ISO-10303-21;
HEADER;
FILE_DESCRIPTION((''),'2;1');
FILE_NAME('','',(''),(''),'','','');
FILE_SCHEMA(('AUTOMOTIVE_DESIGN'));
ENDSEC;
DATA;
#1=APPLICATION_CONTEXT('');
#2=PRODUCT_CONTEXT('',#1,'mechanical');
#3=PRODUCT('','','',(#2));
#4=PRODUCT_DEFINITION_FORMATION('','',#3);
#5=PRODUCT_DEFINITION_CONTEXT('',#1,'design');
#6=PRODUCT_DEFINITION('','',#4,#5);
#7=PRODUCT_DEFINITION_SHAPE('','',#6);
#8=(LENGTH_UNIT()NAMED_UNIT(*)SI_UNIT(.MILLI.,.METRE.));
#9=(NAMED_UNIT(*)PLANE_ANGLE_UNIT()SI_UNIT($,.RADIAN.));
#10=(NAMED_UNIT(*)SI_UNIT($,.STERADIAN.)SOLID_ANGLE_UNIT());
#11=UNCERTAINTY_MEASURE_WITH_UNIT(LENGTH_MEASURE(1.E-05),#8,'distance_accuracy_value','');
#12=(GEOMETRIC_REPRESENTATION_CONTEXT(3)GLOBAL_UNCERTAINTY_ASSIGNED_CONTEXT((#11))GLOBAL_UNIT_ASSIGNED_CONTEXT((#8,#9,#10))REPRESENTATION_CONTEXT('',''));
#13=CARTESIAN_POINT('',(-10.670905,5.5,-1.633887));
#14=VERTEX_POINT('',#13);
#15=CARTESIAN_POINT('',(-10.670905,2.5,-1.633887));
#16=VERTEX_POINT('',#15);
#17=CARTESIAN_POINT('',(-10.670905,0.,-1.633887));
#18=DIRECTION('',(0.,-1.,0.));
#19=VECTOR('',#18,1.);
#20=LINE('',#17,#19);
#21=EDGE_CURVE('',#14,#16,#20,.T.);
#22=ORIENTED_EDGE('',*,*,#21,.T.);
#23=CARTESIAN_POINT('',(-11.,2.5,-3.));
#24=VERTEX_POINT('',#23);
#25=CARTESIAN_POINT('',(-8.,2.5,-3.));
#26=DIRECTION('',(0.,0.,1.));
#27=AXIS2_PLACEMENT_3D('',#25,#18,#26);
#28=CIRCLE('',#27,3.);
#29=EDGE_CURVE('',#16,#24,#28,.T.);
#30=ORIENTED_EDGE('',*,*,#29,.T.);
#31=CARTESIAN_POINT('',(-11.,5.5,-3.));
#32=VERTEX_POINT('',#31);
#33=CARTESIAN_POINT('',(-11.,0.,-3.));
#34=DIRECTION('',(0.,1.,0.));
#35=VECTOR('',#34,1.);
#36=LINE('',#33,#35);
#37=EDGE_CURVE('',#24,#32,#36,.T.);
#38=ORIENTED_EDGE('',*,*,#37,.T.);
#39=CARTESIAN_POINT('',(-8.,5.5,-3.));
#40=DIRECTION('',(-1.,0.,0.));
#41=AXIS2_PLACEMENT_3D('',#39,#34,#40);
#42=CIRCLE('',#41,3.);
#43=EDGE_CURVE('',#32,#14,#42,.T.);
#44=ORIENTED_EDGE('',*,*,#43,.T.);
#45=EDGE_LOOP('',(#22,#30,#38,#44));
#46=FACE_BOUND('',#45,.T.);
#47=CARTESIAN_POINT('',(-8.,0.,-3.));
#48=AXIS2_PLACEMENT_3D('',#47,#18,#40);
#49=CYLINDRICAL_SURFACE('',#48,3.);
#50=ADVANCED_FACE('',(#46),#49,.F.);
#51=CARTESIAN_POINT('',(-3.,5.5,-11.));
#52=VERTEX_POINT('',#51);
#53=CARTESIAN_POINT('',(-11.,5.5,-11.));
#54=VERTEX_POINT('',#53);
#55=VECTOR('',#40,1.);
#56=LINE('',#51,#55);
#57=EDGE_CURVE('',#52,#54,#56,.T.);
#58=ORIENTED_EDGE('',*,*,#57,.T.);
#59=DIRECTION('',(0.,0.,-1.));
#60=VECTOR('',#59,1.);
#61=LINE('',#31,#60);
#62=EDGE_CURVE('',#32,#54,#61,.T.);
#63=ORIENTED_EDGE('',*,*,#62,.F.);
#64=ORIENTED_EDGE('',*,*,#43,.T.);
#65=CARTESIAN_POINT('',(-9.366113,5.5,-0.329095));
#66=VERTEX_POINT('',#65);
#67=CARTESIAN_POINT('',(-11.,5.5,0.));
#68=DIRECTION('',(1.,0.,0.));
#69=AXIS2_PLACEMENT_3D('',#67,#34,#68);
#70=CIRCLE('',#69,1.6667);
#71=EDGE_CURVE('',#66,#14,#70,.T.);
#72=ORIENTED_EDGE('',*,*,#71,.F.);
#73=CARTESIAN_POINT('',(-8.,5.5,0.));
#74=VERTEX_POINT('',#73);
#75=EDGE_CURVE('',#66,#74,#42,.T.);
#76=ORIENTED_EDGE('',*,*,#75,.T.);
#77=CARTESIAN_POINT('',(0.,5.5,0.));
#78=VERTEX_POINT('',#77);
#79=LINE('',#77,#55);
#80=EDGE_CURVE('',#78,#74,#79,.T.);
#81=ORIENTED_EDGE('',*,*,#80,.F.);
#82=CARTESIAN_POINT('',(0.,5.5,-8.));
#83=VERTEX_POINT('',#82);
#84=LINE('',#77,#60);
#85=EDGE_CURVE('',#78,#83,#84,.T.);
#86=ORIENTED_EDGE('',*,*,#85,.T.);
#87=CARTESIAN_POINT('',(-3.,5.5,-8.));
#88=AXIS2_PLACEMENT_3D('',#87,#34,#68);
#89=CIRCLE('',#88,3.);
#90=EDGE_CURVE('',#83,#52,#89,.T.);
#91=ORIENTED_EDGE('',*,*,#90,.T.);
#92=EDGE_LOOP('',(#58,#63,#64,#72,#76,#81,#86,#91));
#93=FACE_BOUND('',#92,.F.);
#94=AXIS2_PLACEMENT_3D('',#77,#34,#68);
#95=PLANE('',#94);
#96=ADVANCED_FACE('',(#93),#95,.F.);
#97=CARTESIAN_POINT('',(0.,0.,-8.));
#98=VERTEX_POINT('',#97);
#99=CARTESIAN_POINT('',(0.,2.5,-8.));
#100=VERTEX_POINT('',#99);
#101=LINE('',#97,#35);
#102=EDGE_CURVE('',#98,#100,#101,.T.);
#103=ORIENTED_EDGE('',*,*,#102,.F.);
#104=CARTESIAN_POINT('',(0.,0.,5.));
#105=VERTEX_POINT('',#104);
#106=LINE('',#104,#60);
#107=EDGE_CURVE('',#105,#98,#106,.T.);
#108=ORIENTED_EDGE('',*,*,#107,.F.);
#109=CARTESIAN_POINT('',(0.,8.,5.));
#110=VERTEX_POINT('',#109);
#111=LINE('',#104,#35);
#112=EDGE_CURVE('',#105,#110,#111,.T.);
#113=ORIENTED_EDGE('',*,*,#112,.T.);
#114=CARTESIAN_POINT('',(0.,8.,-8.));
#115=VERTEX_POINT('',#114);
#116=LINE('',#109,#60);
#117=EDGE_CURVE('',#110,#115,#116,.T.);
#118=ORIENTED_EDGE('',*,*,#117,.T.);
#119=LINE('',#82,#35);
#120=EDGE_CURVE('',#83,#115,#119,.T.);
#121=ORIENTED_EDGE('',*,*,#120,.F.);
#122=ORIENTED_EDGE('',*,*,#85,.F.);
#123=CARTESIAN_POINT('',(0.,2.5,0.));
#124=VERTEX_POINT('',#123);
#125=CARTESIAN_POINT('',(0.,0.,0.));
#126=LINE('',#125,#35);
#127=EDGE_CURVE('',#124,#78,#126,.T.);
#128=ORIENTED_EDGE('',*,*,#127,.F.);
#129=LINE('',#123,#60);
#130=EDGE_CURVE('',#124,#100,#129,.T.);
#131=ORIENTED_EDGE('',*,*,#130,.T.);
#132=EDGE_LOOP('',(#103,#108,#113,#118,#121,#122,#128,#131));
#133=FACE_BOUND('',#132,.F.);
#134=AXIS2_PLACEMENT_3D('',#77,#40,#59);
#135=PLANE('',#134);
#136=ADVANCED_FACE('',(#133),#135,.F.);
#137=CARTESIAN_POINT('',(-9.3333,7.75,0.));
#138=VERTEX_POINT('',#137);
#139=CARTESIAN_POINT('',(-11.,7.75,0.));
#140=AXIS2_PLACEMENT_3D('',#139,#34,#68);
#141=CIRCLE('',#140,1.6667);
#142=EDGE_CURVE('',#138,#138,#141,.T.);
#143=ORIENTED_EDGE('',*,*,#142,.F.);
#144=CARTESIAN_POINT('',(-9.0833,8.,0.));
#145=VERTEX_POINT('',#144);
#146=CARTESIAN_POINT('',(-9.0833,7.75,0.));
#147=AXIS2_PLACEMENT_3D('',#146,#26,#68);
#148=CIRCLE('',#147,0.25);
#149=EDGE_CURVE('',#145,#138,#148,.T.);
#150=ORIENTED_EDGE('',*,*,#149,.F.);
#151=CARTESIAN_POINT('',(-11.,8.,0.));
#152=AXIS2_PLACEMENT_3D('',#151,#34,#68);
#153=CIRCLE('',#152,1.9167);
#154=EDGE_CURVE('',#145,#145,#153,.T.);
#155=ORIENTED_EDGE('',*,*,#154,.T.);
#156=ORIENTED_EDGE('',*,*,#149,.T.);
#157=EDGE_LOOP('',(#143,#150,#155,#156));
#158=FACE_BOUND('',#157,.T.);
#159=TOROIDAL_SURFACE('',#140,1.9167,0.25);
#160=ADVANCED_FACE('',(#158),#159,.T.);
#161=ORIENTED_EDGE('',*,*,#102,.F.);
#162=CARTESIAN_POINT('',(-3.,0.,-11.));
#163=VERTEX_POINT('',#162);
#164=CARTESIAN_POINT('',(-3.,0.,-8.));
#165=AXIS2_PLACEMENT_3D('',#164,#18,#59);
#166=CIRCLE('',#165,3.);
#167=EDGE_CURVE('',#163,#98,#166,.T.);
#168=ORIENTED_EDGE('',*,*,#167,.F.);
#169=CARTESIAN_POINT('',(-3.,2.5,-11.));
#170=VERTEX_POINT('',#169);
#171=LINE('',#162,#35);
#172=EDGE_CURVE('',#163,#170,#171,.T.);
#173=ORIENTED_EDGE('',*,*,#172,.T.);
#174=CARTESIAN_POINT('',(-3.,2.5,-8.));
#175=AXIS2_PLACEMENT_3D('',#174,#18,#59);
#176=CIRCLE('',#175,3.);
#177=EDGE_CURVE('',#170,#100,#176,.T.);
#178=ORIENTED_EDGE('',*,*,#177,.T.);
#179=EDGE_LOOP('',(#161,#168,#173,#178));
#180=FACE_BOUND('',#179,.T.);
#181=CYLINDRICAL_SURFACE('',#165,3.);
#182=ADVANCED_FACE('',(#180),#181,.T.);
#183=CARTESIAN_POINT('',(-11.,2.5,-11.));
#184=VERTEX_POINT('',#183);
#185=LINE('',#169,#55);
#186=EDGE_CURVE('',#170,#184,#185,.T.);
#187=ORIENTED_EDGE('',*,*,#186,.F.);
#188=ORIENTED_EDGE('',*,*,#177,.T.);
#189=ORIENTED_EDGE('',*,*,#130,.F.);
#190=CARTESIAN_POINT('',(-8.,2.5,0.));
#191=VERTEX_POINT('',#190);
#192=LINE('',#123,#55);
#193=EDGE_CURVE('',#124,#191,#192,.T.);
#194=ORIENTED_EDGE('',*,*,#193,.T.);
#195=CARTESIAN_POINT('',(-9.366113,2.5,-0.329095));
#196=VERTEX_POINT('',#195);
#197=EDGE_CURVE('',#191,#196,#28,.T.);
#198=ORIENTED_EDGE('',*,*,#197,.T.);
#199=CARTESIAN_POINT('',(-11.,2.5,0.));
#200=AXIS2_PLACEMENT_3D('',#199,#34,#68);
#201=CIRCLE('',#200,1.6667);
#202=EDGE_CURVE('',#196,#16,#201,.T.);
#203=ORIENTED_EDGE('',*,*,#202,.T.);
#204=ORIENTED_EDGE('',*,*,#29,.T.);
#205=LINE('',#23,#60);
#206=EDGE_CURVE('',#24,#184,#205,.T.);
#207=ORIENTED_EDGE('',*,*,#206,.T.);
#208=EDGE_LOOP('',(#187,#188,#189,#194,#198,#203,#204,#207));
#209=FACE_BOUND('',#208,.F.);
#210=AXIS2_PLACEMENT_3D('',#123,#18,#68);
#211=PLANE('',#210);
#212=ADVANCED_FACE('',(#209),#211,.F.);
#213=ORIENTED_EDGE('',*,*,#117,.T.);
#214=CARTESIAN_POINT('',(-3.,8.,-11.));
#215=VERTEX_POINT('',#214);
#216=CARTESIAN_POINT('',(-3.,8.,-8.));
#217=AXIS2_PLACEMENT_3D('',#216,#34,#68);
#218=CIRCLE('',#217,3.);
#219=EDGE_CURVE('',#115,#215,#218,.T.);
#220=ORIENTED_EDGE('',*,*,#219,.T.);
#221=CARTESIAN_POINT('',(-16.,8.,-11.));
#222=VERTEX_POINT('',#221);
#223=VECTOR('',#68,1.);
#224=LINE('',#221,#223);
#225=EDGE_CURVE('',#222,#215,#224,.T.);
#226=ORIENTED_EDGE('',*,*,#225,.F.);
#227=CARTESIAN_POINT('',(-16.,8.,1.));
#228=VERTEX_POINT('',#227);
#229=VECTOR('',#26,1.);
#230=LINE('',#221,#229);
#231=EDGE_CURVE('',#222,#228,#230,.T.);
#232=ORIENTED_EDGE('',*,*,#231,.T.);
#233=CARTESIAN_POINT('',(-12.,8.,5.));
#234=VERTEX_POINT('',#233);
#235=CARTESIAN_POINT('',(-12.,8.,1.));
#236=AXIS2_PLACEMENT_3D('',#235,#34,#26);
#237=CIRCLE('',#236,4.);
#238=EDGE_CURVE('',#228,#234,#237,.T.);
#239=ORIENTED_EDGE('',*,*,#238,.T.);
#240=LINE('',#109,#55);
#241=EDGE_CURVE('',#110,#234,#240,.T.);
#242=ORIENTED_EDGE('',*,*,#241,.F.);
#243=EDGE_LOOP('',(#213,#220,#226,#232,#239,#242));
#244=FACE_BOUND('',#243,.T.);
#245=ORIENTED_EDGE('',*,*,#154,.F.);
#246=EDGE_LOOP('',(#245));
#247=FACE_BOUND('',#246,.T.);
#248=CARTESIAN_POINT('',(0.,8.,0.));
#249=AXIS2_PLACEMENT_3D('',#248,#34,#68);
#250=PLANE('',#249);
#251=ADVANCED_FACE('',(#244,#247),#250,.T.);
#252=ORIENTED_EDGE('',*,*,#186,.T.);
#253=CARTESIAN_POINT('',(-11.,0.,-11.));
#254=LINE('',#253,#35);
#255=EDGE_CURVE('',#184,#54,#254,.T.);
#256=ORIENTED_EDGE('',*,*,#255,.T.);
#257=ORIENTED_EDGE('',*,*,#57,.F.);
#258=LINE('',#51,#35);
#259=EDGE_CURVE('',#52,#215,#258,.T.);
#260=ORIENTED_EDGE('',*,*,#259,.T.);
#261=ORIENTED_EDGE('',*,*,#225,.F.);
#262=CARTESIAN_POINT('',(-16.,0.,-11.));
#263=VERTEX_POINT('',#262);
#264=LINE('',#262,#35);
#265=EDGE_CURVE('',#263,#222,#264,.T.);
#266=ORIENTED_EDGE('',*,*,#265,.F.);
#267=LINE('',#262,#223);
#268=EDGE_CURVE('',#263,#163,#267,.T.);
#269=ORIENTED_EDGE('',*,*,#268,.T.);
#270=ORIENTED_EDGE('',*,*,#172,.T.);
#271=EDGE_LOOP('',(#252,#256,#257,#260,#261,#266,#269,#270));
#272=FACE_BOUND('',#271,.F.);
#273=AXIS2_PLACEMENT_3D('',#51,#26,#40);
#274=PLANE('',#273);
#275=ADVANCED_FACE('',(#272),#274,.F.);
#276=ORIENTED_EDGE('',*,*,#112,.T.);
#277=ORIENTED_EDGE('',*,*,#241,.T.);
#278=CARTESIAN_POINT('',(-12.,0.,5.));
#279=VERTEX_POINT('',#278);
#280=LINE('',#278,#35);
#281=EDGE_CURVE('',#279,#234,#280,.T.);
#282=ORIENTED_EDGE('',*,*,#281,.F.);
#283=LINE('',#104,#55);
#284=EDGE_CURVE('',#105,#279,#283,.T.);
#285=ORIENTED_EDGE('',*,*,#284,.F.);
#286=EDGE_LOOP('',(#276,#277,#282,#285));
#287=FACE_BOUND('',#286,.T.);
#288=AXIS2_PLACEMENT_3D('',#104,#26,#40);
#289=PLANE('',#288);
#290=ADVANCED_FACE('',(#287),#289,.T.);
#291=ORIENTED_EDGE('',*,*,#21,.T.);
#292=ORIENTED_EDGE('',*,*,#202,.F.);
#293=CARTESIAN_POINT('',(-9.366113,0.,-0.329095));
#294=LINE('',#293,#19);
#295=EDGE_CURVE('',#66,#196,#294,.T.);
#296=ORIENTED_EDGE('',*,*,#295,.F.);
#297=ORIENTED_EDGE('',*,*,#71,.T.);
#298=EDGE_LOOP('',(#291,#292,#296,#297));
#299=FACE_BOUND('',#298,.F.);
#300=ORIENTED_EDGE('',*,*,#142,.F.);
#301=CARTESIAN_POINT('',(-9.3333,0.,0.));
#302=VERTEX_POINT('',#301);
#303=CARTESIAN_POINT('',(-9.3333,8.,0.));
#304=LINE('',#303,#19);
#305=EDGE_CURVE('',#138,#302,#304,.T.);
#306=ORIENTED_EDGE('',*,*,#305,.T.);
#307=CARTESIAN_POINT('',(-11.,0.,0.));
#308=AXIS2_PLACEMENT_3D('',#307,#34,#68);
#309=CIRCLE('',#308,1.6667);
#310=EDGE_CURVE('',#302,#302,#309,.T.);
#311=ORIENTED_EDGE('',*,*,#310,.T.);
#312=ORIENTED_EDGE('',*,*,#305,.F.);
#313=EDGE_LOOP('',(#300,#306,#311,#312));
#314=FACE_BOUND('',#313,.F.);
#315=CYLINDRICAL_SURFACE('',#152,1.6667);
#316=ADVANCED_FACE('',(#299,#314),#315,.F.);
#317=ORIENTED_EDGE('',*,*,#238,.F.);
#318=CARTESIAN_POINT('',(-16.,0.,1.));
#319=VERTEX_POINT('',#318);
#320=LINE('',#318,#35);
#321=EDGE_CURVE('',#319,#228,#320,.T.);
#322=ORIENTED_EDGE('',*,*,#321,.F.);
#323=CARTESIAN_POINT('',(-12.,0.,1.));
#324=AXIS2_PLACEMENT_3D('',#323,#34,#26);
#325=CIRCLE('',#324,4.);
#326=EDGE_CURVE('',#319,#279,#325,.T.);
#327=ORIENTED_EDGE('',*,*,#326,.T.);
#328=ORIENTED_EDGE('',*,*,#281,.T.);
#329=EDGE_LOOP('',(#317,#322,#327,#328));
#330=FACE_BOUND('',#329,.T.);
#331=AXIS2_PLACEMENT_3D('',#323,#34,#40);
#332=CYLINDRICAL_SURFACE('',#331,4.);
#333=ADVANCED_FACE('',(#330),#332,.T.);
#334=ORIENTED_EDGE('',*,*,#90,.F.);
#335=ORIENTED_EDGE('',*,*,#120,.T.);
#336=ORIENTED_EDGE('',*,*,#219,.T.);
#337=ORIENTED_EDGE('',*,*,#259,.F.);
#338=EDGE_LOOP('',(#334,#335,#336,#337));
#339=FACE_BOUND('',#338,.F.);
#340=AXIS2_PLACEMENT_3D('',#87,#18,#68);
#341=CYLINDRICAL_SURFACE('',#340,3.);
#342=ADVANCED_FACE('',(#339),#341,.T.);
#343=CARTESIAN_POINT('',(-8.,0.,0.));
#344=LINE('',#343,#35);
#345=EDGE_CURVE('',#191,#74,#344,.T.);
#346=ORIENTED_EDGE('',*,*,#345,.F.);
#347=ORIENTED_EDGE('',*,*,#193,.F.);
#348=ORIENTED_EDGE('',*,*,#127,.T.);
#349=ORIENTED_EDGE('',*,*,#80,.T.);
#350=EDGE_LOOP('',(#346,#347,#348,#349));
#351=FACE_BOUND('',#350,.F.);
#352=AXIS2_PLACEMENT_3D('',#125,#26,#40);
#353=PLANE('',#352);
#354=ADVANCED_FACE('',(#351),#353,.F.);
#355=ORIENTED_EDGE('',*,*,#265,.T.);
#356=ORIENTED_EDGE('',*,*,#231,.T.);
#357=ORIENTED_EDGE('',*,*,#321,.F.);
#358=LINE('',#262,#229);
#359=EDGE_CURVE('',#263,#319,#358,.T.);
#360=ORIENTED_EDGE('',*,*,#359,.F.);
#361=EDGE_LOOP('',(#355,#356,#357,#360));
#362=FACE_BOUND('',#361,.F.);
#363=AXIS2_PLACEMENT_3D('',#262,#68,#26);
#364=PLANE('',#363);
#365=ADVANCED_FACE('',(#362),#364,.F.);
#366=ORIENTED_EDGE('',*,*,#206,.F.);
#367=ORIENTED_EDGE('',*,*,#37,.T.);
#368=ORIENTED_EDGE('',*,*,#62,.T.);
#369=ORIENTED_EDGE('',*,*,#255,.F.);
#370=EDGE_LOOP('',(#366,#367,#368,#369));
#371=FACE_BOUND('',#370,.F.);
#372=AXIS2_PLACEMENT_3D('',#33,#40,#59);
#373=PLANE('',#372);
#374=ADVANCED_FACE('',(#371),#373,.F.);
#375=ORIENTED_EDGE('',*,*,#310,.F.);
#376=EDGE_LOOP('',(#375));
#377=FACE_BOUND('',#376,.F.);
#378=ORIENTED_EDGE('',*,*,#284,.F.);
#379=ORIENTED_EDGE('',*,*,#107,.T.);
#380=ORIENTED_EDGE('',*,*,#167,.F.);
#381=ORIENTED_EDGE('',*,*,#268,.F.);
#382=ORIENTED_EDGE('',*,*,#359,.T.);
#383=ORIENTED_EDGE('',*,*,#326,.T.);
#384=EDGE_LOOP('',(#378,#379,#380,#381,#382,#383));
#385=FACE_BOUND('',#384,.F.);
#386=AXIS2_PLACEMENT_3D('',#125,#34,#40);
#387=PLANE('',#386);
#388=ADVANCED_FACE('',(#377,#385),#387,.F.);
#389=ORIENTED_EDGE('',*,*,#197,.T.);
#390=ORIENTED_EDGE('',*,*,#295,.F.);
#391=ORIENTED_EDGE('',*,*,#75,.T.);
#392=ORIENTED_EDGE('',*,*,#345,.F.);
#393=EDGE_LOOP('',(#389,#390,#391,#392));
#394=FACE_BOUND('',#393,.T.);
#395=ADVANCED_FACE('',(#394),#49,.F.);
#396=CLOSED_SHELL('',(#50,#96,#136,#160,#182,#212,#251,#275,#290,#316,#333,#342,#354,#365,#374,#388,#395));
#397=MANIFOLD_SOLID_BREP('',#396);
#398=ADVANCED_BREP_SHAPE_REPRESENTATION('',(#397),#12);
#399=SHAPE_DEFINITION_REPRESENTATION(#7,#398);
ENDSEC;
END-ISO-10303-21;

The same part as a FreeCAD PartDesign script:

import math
import FreeCAD as App
import Part
import Sketcher
from FreeCAD import Vector


def edges_at(feature, points):
    """Names of the edges that pass closest to the given points."""
    edges = feature.Shape.Edges
    near = lambda p: min(range(len(edges)), key=lambda i: edges[i].distToShape(Part.Vertex(*p))[0])
    return sorted({f"Edge{near(p) + 1}" for p in points})

doc = App.newDocument("Part")
body = doc.addObject("PartDesign::Body", "Body")

# Sketch on XZ plane
sketch1 = body.newObject("Sketcher::SketchObject", "Sketch")
sketch1.AttachmentSupport = (doc.getObject("XZ_Plane"), [""])
sketch1.MapMode = "FlatFace"
sketch1.addGeometry(Part.LineSegment(Vector(0, 5, 0), Vector(0, 0, 0)), False)
sketch1.addGeometry(Part.LineSegment(Vector(0, 0, 0), Vector(-8, 0, 0)), False)
sketch1.addGeometry(Part.ArcOfCircle(Part.Circle(Vector(-8, -3, 0), Vector(0, 0, 1), 3), math.radians(90), math.radians(180)), False)
sketch1.addGeometry(Part.LineSegment(Vector(-11, -3, 0), Vector(-11, -11, 0)), False)
sketch1.addGeometry(Part.LineSegment(Vector(-11, -11, 0), Vector(-16, -11, 0)), False)
sketch1.addGeometry(Part.LineSegment(Vector(-16, -11, 0), Vector(-16, 5, 0)), False)
sketch1.addGeometry(Part.LineSegment(Vector(-16, 5, 0), Vector(0, 5, 0)), False)
sketch1.addConstraint(Sketcher.Constraint("Coincident", 0, 2, 1, 1))
sketch1.addConstraint(Sketcher.Constraint("Tangent", 1, 2, 2, 1))
sketch1.addConstraint(Sketcher.Constraint("Tangent", 2, 2, 3, 1))
sketch1.addConstraint(Sketcher.Constraint("Coincident", 3, 2, 4, 1))
sketch1.addConstraint(Sketcher.Constraint("Coincident", 4, 2, 5, 1))
sketch1.addConstraint(Sketcher.Constraint("Coincident", 5, 2, 6, 1))
sketch1.addConstraint(Sketcher.Constraint("Coincident", 6, 2, 0, 1))
sketch1.addConstraint(Sketcher.Constraint("Vertical", 0))
sketch1.addConstraint(Sketcher.Constraint("Horizontal", 1))
sketch1.addConstraint(Sketcher.Constraint("Vertical", 3))
sketch1.addConstraint(Sketcher.Constraint("Horizontal", 4))
sketch1.addConstraint(Sketcher.Constraint("Vertical", 5))
sketch1.addConstraint(Sketcher.Constraint("Horizontal", 6))
sketch1.addConstraint(Sketcher.Constraint("Coincident", 0, 2, -1, 1))
sketch1.addConstraint(Sketcher.Constraint("Equal", 4, 0))
sketch1.addConstraint(Sketcher.Constraint("Equal", 1, 3))
sketch1.addConstraint(Sketcher.Constraint("Radius", 2, 3.0))
sketch1.addConstraint(Sketcher.Constraint("DistanceX", 1, 2, 1, 1, 8.0))
sketch1.addConstraint(Sketcher.Constraint("DistanceX", 4, 2, 4, 1, 5.0))
pad1 = body.newObject("PartDesign::Pad", "Pad")
pad1.Profile = sketch1
pad1.Length = 8
pad1.Reversed = True

# Sketch on XZ plane
sketch2 = body.newObject("Sketcher::SketchObject", "Sketch001")
sketch2.AttachmentSupport = (doc.getObject("XZ_Plane"), [""])
sketch2.MapMode = "FlatFace"
sketch2.addGeometry(Part.LineSegment(Vector(-11, -3, 0), Vector(-11, -11, 0)), False)
sketch2.addGeometry(Part.LineSegment(Vector(-11, -11, 0), Vector(-3, -11, 0)), False)
sketch2.addGeometry(Part.ArcOfCircle(Part.Circle(Vector(-3, -8, 0), Vector(0, 0, 1), 3), math.radians(-90), math.radians(0)), False)
sketch2.addGeometry(Part.LineSegment(Vector(0, -8, 0), Vector(0, 0, 0)), False)
sketch2.addGeometry(Part.LineSegment(Vector(0, 0, 0), Vector(-8, 0, 0)), False)
sketch2.addGeometry(Part.ArcOfCircle(Part.Circle(Vector(-8, -3, 0), Vector(0, 0, 1), 3), math.radians(90), math.radians(180)), False)
sketch2.addConstraint(Sketcher.Constraint("Coincident", 0, 2, 1, 1))
sketch2.addConstraint(Sketcher.Constraint("Tangent", 1, 2, 2, 1))
sketch2.addConstraint(Sketcher.Constraint("Tangent", 2, 2, 3, 1))
sketch2.addConstraint(Sketcher.Constraint("Coincident", 3, 2, 4, 1))
sketch2.addConstraint(Sketcher.Constraint("Tangent", 4, 2, 5, 1))
sketch2.addConstraint(Sketcher.Constraint("Tangent", 5, 2, 0, 1))
sketch2.addConstraint(Sketcher.Constraint("Vertical", 0))
sketch2.addConstraint(Sketcher.Constraint("Horizontal", 1))
sketch2.addConstraint(Sketcher.Constraint("Vertical", 3))
sketch2.addConstraint(Sketcher.Constraint("Horizontal", 4))
sketch2.addConstraint(Sketcher.Constraint("Coincident", 3, 2, -1, 1))
sketch2.addConstraint(Sketcher.Constraint("Equal", 2, 5))
sketch2.addConstraint(Sketcher.Constraint("Equal", 4, 0))
sketch2.addConstraint(Sketcher.Constraint("Radius", 2, 3.0))
sketch2.addConstraint(Sketcher.Constraint("DistanceX", 1, 1, 1, 2, 8.0))
pad2 = body.newObject("PartDesign::Pad", "Pad001")
pad2.Profile = sketch2
pad2.Length = 2.5
pad2.Reversed = True

# Sketch on XZ plane
sketch3 = body.newObject("Sketcher::SketchObject", "Sketch002")
sketch3.AttachmentSupport = (doc.getObject("XZ_Plane"), [""])
sketch3.MapMode = "FlatFace"
sketch3.AttachmentOffset = App.Placement(Vector(0, 0, -5.5), App.Rotation())
sketch3.addGeometry(Part.LineSegment(Vector(-8, 0, 0), Vector(0, 0, 0)), False)
sketch3.addGeometry(Part.LineSegment(Vector(0, 0, 0), Vector(0, -8, 0)), False)
sketch3.addGeometry(Part.ArcOfCircle(Part.Circle(Vector(-3, -8, 0), Vector(0, 0, 1), 3), math.radians(-90), math.radians(0)), False)
sketch3.addGeometry(Part.LineSegment(Vector(-3, -11, 0), Vector(-11, -11, 0)), False)
sketch3.addGeometry(Part.LineSegment(Vector(-11, -11, 0), Vector(-11, -3, 0)), False)
sketch3.addGeometry(Part.ArcOfCircle(Part.Circle(Vector(-8, -3, 0), Vector(0, 0, 1), 3), math.radians(90), math.radians(180)), False)
sketch3.addConstraint(Sketcher.Constraint("Coincident", 0, 2, 1, 1))
sketch3.addConstraint(Sketcher.Constraint("Tangent", 1, 2, 2, 2))
sketch3.addConstraint(Sketcher.Constraint("Tangent", 2, 1, 3, 1))
sketch3.addConstraint(Sketcher.Constraint("Coincident", 3, 2, 4, 1))
sketch3.addConstraint(Sketcher.Constraint("Tangent", 4, 2, 5, 2))
sketch3.addConstraint(Sketcher.Constraint("Tangent", 5, 1, 0, 1))
sketch3.addConstraint(Sketcher.Constraint("Horizontal", 0))
sketch3.addConstraint(Sketcher.Constraint("Vertical", 1))
sketch3.addConstraint(Sketcher.Constraint("Horizontal", 3))
sketch3.addConstraint(Sketcher.Constraint("Vertical", 4))
sketch3.addConstraint(Sketcher.Constraint("Coincident", 0, 2, -1, 1))
sketch3.addConstraint(Sketcher.Constraint("Equal", 2, 5))
sketch3.addConstraint(Sketcher.Constraint("Equal", 3, 1))
sketch3.addConstraint(Sketcher.Constraint("Radius", 2, 3.0))
sketch3.addConstraint(Sketcher.Constraint("DistanceX", 0, 1, 0, 2, 8.0))
pad3 = body.newObject("PartDesign::Pad", "Pad002")
pad3.Profile = sketch3
pad3.Length = 2.5
pad3.Reversed = True

# Sketch on XZ plane
sketch4 = body.newObject("Sketcher::SketchObject", "Sketch003")
sketch4.AttachmentSupport = (doc.getObject("XZ_Plane"), [""])
sketch4.MapMode = "FlatFace"
sketch4.AttachmentOffset = App.Placement(Vector(0, 0, -8), App.Rotation())
sketch4.addGeometry(Part.Circle(Vector(-11, 0, 0), Vector(0, 0, 1), 1.6667), False)
sketch4.addConstraint(Sketcher.Constraint("PointOnObject", 0, 3, -1))
sketch4.addConstraint(Sketcher.Constraint("Diameter", 0, 3.3334))
sketch4.addConstraint(Sketcher.Constraint("DistanceX", 0, 3, -1, 1, 11.0))
pocket1 = body.newObject("PartDesign::Pocket", "Pocket")
pocket1.Profile = sketch4
pocket1.Type = "ThroughAll"
pocket1.Reversed = True
doc.recompute()

fillet = body.newObject("PartDesign::Fillet", "Fillet")
fillet.Base = (pocket1, edges_at(pocket1, [(-12.667, 8, 0)]))
fillet.Radius = 0.25
doc.recompute()

fillet2 = body.newObject("PartDesign::Fillet", "Fillet001")
fillet2.Base = (fillet, edges_at(fillet, [(-16, 4, 5)]))
fillet2.Radius = 4

doc.recompute()
